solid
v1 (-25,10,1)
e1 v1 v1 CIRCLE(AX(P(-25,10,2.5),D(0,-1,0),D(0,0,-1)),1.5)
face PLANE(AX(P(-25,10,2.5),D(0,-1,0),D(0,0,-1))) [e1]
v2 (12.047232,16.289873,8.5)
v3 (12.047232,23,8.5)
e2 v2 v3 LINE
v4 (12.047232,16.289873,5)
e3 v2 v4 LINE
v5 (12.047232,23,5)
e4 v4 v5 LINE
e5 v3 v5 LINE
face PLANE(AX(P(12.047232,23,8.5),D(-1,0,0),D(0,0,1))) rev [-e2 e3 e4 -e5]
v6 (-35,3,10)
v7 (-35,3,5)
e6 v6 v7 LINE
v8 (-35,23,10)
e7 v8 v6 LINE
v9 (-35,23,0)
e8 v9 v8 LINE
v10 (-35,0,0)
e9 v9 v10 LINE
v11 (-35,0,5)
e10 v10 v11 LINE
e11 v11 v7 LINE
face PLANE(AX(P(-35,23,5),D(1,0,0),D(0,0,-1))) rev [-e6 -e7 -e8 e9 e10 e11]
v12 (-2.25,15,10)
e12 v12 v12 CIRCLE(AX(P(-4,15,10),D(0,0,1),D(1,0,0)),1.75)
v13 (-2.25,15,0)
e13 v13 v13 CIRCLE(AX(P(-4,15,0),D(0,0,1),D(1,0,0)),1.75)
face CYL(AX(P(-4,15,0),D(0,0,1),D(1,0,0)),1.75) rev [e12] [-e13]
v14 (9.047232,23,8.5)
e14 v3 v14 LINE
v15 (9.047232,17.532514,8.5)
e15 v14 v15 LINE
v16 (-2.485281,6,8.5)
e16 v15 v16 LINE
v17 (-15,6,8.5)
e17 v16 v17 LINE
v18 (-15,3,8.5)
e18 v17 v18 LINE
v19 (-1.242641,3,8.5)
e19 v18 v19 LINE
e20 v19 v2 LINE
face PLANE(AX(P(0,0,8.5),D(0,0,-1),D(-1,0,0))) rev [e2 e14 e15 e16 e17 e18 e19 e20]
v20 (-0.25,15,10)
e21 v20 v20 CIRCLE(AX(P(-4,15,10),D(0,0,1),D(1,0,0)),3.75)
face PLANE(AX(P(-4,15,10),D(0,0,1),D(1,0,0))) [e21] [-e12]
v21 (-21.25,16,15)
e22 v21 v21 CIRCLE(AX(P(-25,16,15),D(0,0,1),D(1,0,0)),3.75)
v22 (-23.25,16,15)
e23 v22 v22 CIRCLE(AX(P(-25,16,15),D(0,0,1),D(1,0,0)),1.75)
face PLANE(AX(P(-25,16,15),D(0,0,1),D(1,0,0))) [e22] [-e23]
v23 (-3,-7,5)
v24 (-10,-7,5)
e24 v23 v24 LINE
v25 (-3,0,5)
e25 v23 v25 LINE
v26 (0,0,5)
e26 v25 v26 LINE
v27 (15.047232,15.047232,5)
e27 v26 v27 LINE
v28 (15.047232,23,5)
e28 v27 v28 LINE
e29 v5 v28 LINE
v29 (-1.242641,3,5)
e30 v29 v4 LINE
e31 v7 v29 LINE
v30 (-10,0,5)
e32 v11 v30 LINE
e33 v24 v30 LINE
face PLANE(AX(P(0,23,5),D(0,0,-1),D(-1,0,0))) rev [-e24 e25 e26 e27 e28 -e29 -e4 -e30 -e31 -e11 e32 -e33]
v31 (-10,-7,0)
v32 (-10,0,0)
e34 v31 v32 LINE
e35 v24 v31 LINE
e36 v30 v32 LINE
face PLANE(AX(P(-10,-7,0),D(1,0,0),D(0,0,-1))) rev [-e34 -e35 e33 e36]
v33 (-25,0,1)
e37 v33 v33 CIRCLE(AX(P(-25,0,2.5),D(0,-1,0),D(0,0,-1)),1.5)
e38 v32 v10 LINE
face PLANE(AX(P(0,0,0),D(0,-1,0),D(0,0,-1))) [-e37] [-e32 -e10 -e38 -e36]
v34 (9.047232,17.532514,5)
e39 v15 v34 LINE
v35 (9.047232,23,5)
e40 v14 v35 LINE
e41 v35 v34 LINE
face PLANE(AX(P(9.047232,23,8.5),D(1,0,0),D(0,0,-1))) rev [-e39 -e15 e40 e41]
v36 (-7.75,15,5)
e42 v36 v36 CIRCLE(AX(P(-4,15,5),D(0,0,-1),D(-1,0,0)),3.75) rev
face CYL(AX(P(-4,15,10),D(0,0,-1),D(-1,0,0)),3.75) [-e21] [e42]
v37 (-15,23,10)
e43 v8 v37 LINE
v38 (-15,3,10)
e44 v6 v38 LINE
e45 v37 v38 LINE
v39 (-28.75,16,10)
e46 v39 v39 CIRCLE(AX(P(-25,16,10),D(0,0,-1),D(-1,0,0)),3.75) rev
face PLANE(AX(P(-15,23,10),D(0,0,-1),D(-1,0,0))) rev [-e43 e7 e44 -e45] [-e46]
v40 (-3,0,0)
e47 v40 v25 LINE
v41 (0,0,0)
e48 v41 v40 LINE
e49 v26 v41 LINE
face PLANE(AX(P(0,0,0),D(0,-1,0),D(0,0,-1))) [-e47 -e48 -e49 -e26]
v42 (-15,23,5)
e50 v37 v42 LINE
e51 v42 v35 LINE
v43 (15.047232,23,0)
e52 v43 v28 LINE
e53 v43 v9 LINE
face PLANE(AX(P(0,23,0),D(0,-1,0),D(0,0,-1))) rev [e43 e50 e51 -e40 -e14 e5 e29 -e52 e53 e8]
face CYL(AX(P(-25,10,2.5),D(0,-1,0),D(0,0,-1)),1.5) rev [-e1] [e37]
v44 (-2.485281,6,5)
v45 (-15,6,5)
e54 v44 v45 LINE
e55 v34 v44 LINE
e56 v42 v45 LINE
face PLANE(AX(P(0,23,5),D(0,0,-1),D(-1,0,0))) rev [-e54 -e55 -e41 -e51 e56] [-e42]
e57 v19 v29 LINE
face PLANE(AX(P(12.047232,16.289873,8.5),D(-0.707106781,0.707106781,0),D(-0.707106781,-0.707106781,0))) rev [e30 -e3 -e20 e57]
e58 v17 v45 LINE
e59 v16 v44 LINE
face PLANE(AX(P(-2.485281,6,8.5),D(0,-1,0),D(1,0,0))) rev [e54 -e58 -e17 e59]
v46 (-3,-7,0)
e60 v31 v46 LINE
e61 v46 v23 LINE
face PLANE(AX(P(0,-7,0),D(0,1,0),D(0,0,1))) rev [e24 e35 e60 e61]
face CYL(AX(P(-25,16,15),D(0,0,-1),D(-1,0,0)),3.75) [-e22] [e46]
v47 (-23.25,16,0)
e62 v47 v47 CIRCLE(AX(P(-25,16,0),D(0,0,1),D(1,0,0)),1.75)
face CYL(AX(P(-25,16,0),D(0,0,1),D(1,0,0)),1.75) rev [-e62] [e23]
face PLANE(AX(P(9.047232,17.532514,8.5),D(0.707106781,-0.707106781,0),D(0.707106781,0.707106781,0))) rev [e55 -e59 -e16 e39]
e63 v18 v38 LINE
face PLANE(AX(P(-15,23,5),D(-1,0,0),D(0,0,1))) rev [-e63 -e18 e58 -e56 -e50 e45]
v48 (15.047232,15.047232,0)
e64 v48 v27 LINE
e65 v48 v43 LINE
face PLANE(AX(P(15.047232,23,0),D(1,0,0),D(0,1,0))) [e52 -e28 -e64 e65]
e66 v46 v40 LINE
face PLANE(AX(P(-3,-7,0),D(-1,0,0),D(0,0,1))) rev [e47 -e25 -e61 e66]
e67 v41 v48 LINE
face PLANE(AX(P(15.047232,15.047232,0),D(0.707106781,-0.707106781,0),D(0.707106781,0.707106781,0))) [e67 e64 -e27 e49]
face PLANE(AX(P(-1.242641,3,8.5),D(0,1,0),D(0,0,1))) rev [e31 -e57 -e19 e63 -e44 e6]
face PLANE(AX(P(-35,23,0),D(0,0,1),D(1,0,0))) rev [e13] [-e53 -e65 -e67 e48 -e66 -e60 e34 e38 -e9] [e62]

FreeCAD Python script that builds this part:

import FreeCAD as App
import Part
import Sketcher
Q = App.Units.Quantity


def add_polygon(sketch, points):
    """Adds a closed chain of lines whose ends are joined by coincident constraints."""
    first, n = sketch.GeometryCount, len(points)
    for a, b in zip(points, points[1:] + points[:1]):
        sketch.addGeometry(Part.LineSegment(App.Vector(*a, 0), App.Vector(*b, 0)), False)
    for i in range(n):
        sketch.addConstraint(Sketcher.Constraint("Coincident", first + i, 2, first + (i + 1) % n, 1))

doc = App.newDocument("Part")
body = doc.addObject("PartDesign::Body", "Body")

sketch1 = doc.addObject("Sketcher::SketchObject", "Sketch")
body.addObject(sketch1)
sketch1.AttachmentSupport = (doc.XZ_Plane, [""])
sketch1.MapMode = "FlatFace"
add_polygon(sketch1, [(0, 0), (-35, 0), (-35, 10), (-15, 10), (-15, 5), (0, 5)])
sketch1.addConstraint([
    Sketcher.Constraint("Horizontal", 0),
    Sketcher.Constraint("Vertical", 1),
    Sketcher.Constraint("Horizontal", 2),
    Sketcher.Constraint("Vertical", 3),
    Sketcher.Constraint("Horizontal", 4),
    Sketcher.Constraint("Vertical", 5),
    Sketcher.Constraint("Coincident", 5, 2, -1, 1),
    Sketcher.Constraint("Equal", 3, 5),
    Sketcher.Constraint("DistanceX", 0, 2, 0, 1, Q("35 mm")),
    Sketcher.Constraint("DistanceX", 2, 1, 2, 2, Q("20 mm")),
    Sketcher.Constraint("DistanceY", 1, 1, 1, 2, Q("10 mm")),
])
pad1 = doc.addObject("PartDesign::Pad", "Pad")
body.addObject(pad1)
pad1.Profile = sketch1
pad1.Length = 23
pad1.Reversed = True

sketch2 = doc.addObject("Sketcher::SketchObject", "Sketch001")
body.addObject(sketch2)
sketch2.AttachmentSupport = (doc.XY_Plane, [""])
sketch2.MapMode = "FlatFace"
sketch2.AttachmentOffset = App.Placement(App.Vector(0, 0, 10), App.Rotation())
sketch2.addGeometry([
    Part.Circle(App.Vector(-25, 16, 0), App.Vector(0, 0, 1), 1.75),
    Part.Circle(App.Vector(-4, 15, 0), App.Vector(0, 0, 1), 1.75),
], False)
sketch2.addConstraint([
    Sketcher.Constraint("Equal", 0, 1),
    Sketcher.Constraint("Diameter", 0, Q("3.5 mm")),
    Sketcher.Constraint("DistanceX", 0, 3, -1, 1, Q("25 mm")),
    Sketcher.Constraint("DistanceY", -1, 1, 0, 3, Q("16 mm")),
    Sketcher.Constraint("DistanceX", 1, 3, -1, 1, Q("4 mm")),
    Sketcher.Constraint("DistanceY", -1, 1, 1, 3, Q("15 mm")),
])
pocket1 = doc.addObject("PartDesign::Pocket", "Pocket")
body.addObject(pocket1)
pocket1.Profile = sketch2
pocket1.Type = "ThroughAll"

sketch3 = doc.addObject("Sketcher::SketchObject", "Sketch002")
body.addObject(sketch3)
sketch3.AttachmentSupport = (doc.XZ_Plane, [""])
sketch3.MapMode = "FlatFace"
sketch3.addGeometry(Part.Circle(App.Vector(-25, 2.5, 0), App.Vector(0, 0, 1), 1.5), False)
sketch3.addConstraint([
    Sketcher.Constraint("Diameter", 0, Q("3 mm")),
    Sketcher.Constraint("DistanceX", 0, 3, -1, 1, Q("25 mm")),
    Sketcher.Constraint("DistanceY", -1, 1, 0, 3, Q("2.5 mm")),
])
pocket2 = doc.addObject("PartDesign::Pocket", "Pocket001")
body.addObject(pocket2)
pocket2.Profile = sketch3
pocket2.Length = 10

sketch4 = doc.addObject("Sketcher::SketchObject", "Sketch003")
body.addObject(sketch4)
sketch4.AttachmentSupport = (doc.XZ_Plane, [""])
sketch4.MapMode = "FlatFace"
add_polygon(sketch4, [(-10, 5), (-10, 0), (-3, 0), (-3, 5)])
sketch4.addConstraint([
    Sketcher.Constraint("Vertical", 0),
    Sketcher.Constraint("Horizontal", 1),
    Sketcher.Constraint("Vertical", 2),
    Sketcher.Constraint("Horizontal", 3),
    Sketcher.Constraint("PointOnObject", 0, 2, -1),
    Sketcher.Constraint("DistanceX", 1, 1, 1, 2, Q("7 mm")),
    Sketcher.Constraint("DistanceY", 0, 2, 0, 1, Q("5 mm")),
    Sketcher.Constraint("DistanceX", 0, 2, -1, 1, Q("10 mm")),
])
pad2 = doc.addObject("PartDesign::Pad", "Pad001")
body.addObject(pad2)
pad2.Profile = sketch4
pad2.Length = 7

sketch5 = doc.addObject("Sketcher::SketchObject", "Sketch004")
body.addObject(sketch5)
sketch5.AttachmentSupport = (doc.XY_Plane, [""])
sketch5.MapMode = "FlatFace"
sketch5.AttachmentOffset = App.Placement(App.Vector(0, 0, 10), App.Rotation())
sketch5.addGeometry([
    Part.Circle(App.Vector(-25, 16, 0), App.Vector(0, 0, 1), 3.75),
    Part.Circle(App.Vector(-25, 16, 0), App.Vector(0, 0, 1), 1.75),
], False)
sketch5.addConstraint([
    Sketcher.Constraint("Coincident", 1, 3, 0, 3),
    Sketcher.Constraint("Diameter", 0, Q("7.5 mm")),
    Sketcher.Constraint("Diameter", 1, Q("3.5 mm")),
    Sketcher.Constraint("DistanceX", 0, 3, -1, 1, Q("25 mm")),
    Sketcher.Constraint("DistanceY", -1, 1, 0, 3, Q("16 mm")),
])
pad3 = doc.addObject("PartDesign::Pad", "Pad002")
body.addObject(pad3)
pad3.Profile = sketch5
pad3.Length = 5

sketch6 = doc.addObject("Sketcher::SketchObject", "Sketch005")
body.addObject(sketch6)
sketch6.AttachmentSupport = (doc.XY_Plane, [""])
sketch6.MapMode = "FlatFace"
sketch6.AttachmentOffset = App.Placement(App.Vector(0, 0, 5), App.Rotation())
sketch6.addGeometry([
    Part.Circle(App.Vector(-4, 15, 0), App.Vector(0, 0, 1), 3.75),
    Part.Circle(App.Vector(-4, 15, 0), App.Vector(0, 0, 1), 1.75),
], False)
sketch6.addConstraint([
    Sketcher.Constraint("Coincident", 1, 3, 0, 3),
    Sketcher.Constraint("Diameter", 0, Q("7.5 mm")),
    Sketcher.Constraint("Diameter", 1, Q("3.5 mm")),
    Sketcher.Constraint("DistanceX", 0, 3, -1, 1, Q("4 mm")),
    Sketcher.Constraint("DistanceY", -1, 1, 0, 3, Q("15 mm")),
])
pad4 = doc.addObject("PartDesign::Pad", "Pad003")
body.addObject(pad4)
pad4.Profile = sketch6
pad4.Length = 5

sketch7 = doc.addObject("Sketcher::SketchObject", "Sketch006")
body.addObject(sketch7)
sketch7.AttachmentSupport = (doc.XY_Plane, [""])
sketch7.MapMode = "FlatFace"
sketch7.AttachmentOffset = App.Placement(App.Vector(0, 0, 5), App.Rotation())
add_polygon(sketch7, [(0, 23), (0, 0), (15.047232, 15.047232), (15.047232, 23)])
sketch7.addConstraint([
    Sketcher.Constraint("Vertical", 0),
    Sketcher.Constraint("Vertical", 2),
    Sketcher.Constraint("Horizontal", 3),
    Sketcher.Constraint("Coincident", 0, 2, -1, 1),
    Sketcher.Constraint("DistanceY", 0, 2, 0, 1, Q("23 mm")),
    Sketcher.Constraint("Angle", 1, Q("45 deg")),
    Sketcher.Constraint("Distance", 1, Q("21.28 mm")),
])
pad5 = doc.addObject("PartDesign::Pad", "Pad004")
body.addObject(pad5)
pad5.Profile = sketch7
pad5.Length = 5
pad5.Reversed = True

sketch8 = doc.addObject("Sketcher::SketchObject", "Sketch007")
body.addObject(sketch8)
sketch8.AttachmentSupport = (doc.XY_Plane, [""])
sketch8.MapMode = "FlatFace"
sketch8.AttachmentOffset = App.Placement(App.Vector(0, 0, 5), App.Rotation())
add_polygon(sketch8, [(12.047232, 16.289873), (12.047232, 23), (9.047232, 23), (9.047232, 17.532514), (-2.485281, 6), (-15, 6), (-15, 3), (-1.242641, 3)])
sketch8.addConstraint([
    Sketcher.Constraint("Vertical", 0),
    Sketcher.Constraint("Horizontal", 1),
    Sketcher.Constraint("Vertical", 2),
    Sketcher.Constraint("Horizontal", 4),
    Sketcher.Constraint("Vertical", 5),
    Sketcher.Constraint("Horizontal", 6),
    Sketcher.Constraint("Parallel", 3, 7),
    Sketcher.Constraint("Equal", 1, 5),
    Sketcher.Constraint("DistanceX", 1, 2, 1, 1, Q("3 mm")),
    Sketcher.Constraint("Angle", 3, Q("-135 deg")),
    Sketcher.Constraint("DistanceY", -1, 1, 0, 2, Q("23 mm")),
    Sketcher.Constraint("DistanceY", -1, 1, 3, 2, Q("6 mm")),
    Sketcher.Constraint("DistanceX", 4, 2, -1, 1, Q("15 mm")),
    Sketcher.Constraint("DistanceX", 4, 2, 4, 1, Q("12.514719 mm")),
    Sketcher.Constraint("DistanceX", 6, 1, 6, 2, Q("13.757359 mm")),
    Sketcher.Constraint("Distance", 7, Q("18.794719 mm")),
])
pad6 = doc.addObject("PartDesign::Pad", "Pad005")
body.addObject(pad6)
pad6.Profile = sketch8
pad6.Length = 3.5

sketch9 = doc.addObject("Sketcher::SketchObject", "Sketch008")
body.addObject(sketch9)
sketch9.AttachmentSupport = (doc.YZ_Plane, [""])
sketch9.MapMode = "FlatFace"
sketch9.AttachmentOffset = App.Placement(App.Vector(0, 0, -15), App.Rotation())
add_polygon(sketch9, [(3, 10), (0, 10), (0, 5), (3, 5)])
sketch9.addConstraint([
    Sketcher.Constraint("Horizontal", 0),
    Sketcher.Constraint("Vertical", 1),
    Sketcher.Constraint("Horizontal", 2),
    Sketcher.Constraint("Vertical", 3),
    Sketcher.Constraint("PointOnObject", 0, 2, -2),
    Sketcher.Constraint("DistanceX", 0, 2, 0, 1, Q("3 mm")),
    Sketcher.Constraint("DistanceY", 1, 2, 1, 1, Q("5 mm")),
    Sketcher.Constraint("DistanceY", -1, 1, 0, 2, Q("10 mm")),
])
pocket3 = doc.addObject("PartDesign::Pocket", "Pocket002")
body.addObject(pocket3)
pocket3.Profile = sketch9
pocket3.Length = 20

doc.recompute()
